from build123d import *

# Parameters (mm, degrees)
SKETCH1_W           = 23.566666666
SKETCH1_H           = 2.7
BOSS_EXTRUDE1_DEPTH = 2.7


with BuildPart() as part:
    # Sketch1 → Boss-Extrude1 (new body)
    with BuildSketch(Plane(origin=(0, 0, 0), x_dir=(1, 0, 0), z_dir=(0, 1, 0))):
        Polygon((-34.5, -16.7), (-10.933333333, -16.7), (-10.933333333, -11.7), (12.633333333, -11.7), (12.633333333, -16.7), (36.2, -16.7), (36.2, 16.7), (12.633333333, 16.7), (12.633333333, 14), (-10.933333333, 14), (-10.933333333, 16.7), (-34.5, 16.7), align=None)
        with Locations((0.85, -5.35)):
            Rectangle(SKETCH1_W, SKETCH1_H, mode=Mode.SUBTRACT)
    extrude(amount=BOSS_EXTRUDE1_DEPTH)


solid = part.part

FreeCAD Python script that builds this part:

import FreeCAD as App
import Part
import Sketcher


def add_polygon(sketch, points):
    """Adds a closed chain of lines whose ends are joined by coincident constraints."""
    first, n = sketch.GeometryCount, len(points)
    for a, b in zip(points, points[1:] + points[:1]):
        sketch.addGeometry(Part.LineSegment(App.Vector(*a, 0), App.Vector(*b, 0)), False)
    for i in range(n):
        sketch.addConstraint(Sketcher.Constraint("Coincident", first + i, 2, first + (i + 1) % n, 1))

doc = App.newDocument("Part")
body = doc.addObject("PartDesign::Body", "Body")

sketch1 = doc.addObject("Sketcher::SketchObject", "Sketch")
body.addObject(sketch1)
sketch1.AttachmentSupport = (doc.XZ_Plane, [""])
sketch1.MapMode = "FlatFace"
add_polygon(sketch1, [(-34.5, 16.7), (-10.9, 16.7), (-10.9, 11.7), (12.6, 11.7), (12.6, 16.7), (36.2, 16.7), (36.2, -16.7), (12.6, -16.7), (12.6, -14), (-10.9, -14), (-10.9, -16.7), (-34.5, -16.7)])
add_polygon(sketch1, [(12.6, 6.7), (-10.9, 6.7), (-10.9, 4), (12.6, 4)])
sketch1.addConstraint(Sketcher.Constraint("Horizontal", 0))
sketch1.addConstraint(Sketcher.Constraint("Vertical", 1))
sketch1.addConstraint(Sketcher.Constraint("Horizontal", 2))
sketch1.addConstraint(Sketcher.Constraint("Vertical", 3))
sketch1.addConstraint(Sketcher.Constraint("Horizontal", 4))
sketch1.addConstraint(Sketcher.Constraint("Vertical", 5))
sketch1.addConstraint(Sketcher.Constraint("Horizontal", 6))
sketch1.addConstraint(Sketcher.Constraint("Vertical", 7))
sketch1.addConstraint(Sketcher.Constraint("Horizontal", 8))
sketch1.addConstraint(Sketcher.Constraint("Vertical", 9))
sketch1.addConstraint(Sketcher.Constraint("Horizontal", 10))
sketch1.addConstraint(Sketcher.Constraint("Vertical", 11))
sketch1.addConstraint(Sketcher.Constraint("Horizontal", 12))
sketch1.addConstraint(Sketcher.Constraint("Vertical", 13))
sketch1.addConstraint(Sketcher.Constraint("Horizontal", 14))
sketch1.addConstraint(Sketcher.Constraint("Vertical", 15))
sketch1.addConstraint(Sketcher.Constraint("Symmetric", 3, 2, 6, 2, -1))
sketch1.addConstraint(Sketcher.Constraint("Symmetric", 0, 2, 9, 2, -1))
sketch1.addConstraint(Sketcher.Constraint("Horizontal", 0, 2, 3, 2))
sketch1.addConstraint(Sketcher.Constraint("Vertical", 9, 2, 12, 2))
sketch1.addConstraint(Sketcher.Constraint("Vertical", 7, 2, 14, 2))
sketch1.addConstraint(Sketcher.Constraint("Equal", 0, 2))
sketch1.addConstraint(Sketcher.Constraint("Equal", 2, 4))
sketch1.addConstraint(Sketcher.Constraint("Equal", 9, 13))
sketch1.addConstraint(Sketcher.Constraint("DistanceY", 1, 2, 1, 1, 5.0))
sketch1.addConstraint(Sketcher.Constraint("DistanceY", 5, 2, 5, 1, 33.4))
sketch1.addConstraint(Sketcher.Constraint("DistanceY", 7, 1, 7, 2, 2.7))
sketch1.addConstraint(Sketcher.Constraint("DistanceY", -1, 1, 13, 2, 4.0))
sketch1.addConstraint(Sketcher.Constraint("DistanceX", -1, 1, 4, 2, 36.2))
sketch1.addConstraint(Sketcher.Constraint("DistanceX", 10, 2, -1, 1, 34.5))
pad1 = doc.addObject("PartDesign::Pad", "Pad")
body.addObject(pad1)
pad1.Profile = sketch1
pad1.Length = 2.7
pad1.Reversed = True

doc.recompute()
